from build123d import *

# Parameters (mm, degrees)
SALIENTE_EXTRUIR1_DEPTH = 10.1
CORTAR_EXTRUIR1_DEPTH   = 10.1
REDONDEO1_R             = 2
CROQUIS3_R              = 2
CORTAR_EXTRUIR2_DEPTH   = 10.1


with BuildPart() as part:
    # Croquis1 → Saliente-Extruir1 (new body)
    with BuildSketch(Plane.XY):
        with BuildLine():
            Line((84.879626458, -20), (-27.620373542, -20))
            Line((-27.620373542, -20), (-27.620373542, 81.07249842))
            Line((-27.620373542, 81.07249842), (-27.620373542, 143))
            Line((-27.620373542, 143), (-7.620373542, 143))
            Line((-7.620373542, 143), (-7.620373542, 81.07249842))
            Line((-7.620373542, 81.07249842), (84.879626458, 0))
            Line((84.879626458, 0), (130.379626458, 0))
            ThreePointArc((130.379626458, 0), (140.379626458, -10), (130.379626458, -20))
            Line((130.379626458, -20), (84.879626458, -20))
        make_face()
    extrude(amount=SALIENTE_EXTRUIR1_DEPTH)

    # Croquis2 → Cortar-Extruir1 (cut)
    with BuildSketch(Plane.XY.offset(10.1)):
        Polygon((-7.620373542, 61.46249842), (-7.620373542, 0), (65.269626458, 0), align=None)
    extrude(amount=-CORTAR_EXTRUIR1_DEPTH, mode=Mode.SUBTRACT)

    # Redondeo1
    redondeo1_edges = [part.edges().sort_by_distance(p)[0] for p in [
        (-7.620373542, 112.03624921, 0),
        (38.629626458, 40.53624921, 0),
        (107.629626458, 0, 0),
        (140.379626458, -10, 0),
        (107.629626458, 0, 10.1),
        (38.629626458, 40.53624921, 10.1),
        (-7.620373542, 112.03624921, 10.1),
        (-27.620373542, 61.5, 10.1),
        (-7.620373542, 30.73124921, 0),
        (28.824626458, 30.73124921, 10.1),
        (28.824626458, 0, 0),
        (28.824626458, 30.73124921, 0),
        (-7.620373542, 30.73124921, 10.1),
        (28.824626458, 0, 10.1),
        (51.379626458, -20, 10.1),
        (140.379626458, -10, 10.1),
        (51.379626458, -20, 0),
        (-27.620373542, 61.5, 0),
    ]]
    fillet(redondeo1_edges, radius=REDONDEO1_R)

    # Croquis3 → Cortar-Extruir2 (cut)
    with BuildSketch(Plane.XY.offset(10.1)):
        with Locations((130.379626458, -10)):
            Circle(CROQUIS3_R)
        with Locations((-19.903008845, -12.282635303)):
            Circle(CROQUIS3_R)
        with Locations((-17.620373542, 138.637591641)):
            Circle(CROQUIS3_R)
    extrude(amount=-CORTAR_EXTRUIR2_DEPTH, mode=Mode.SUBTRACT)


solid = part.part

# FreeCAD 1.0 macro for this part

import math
import FreeCAD as App
import Part
import Sketcher

V = App.Vector
Q = App.Units.Quantity


def edges_at(feature, points):
    """Names of the edges that pass closest to the given points."""
    edges = feature.Shape.Edges
    near = lambda p: min(range(len(edges)), key=lambda i: edges[i].distToShape(Part.Vertex(*p))[0])
    return sorted({f"Edge{near(p) + 1}" for p in points})

doc = App.newDocument("Part")
body = doc.addObject("PartDesign::Body", "Body")

sketch1 = body.newObject("Sketcher::SketchObject", "Sketch")
sketch1.AttachmentSupport = (doc.getObject("XY_Plane"), [""])
sketch1.MapMode = "FlatFace"
sketch1.addGeometry([
    Part.LineSegment(V(-28, 143, 0), V(-28, -20, 0)),
    Part.LineSegment(V(-28, -20, 0), V(130, -20, 0)),
    Part.ArcOfCircle(Part.Circle(V(130, -10, 0), V(0, 0, 1), 10), math.radians(-90), math.radians(90)),
    Part.LineSegment(V(130, 0, 0), V(85, 0, 0)),
    Part.LineSegment(V(85, 0, 0), V(-8, 81, 0)),
    Part.LineSegment(V(-8, 81, 0), V(-8, 143, 0)),
    Part.LineSegment(V(-8, 143, 0), V(-28, 143, 0)),
], False)
sketch1.addConstraint([
    Sketcher.Constraint("Coincident", 0, 2, 1, 1),
    Sketcher.Constraint("Tangent", 1, 2, 2, 1),
    Sketcher.Constraint("Tangent", 2, 2, 3, 1),
    Sketcher.Constraint("Coincident", 3, 2, 4, 1),
    Sketcher.Constraint("Coincident", 4, 2, 5, 1),
    Sketcher.Constraint("Coincident", 5, 2, 6, 1),
    Sketcher.Constraint("Coincident", 6, 2, 0, 1),
    Sketcher.Constraint("Vertical", 0),
    Sketcher.Constraint("Horizontal", 1),
    Sketcher.Constraint("Horizontal", 3),
    Sketcher.Constraint("Vertical", 5),
    Sketcher.Constraint("Horizontal", 6),
    Sketcher.Constraint("PointOnObject", 2, 2, -1),
    Sketcher.Constraint("Radius", 2, Q("10 mm")),
    Sketcher.Constraint("DistanceX", 1, 1, 1, 2, Q("158 mm")),
    Sketcher.Constraint("DistanceX", 6, 2, 6, 1, Q("20 mm")),
    Sketcher.Constraint("DistanceY", 0, 2, 0, 1, Q("163 mm")),
    Sketcher.Constraint("Distance", 4, Q("123 mm")),
    Sketcher.Constraint("DistanceX", 3, 2, 3, 1, Q("45.5 mm")),
    Sketcher.Constraint("DistanceX", -1, 1, 2, 3, Q("130.379626 mm")),
])
pad1 = body.newObject("PartDesign::Pad", "Pad")
pad1.Profile = sketch1
pad1.Length = 10.1

sketch2 = body.newObject("Sketcher::SketchObject", "Sketch001")
sketch2.AttachmentSupport = (doc.getObject("XY_Plane"), [""])
sketch2.MapMode = "FlatFace"
sketch2.AttachmentOffset = App.Placement(V(0, 0, 10.1), App.Rotation())
sketch2.addGeometry([
    Part.LineSegment(V(-8, 61, 0), V(-8, 0, 0)),
    Part.LineSegment(V(-8, 0, 0), V(65, 0, 0)),
    Part.LineSegment(V(65, 0, 0), V(-8, 61, 0)),
], False)
sketch2.addConstraint([
    Sketcher.Constraint("Coincident", 0, 2, 1, 1),
    Sketcher.Constraint("Coincident", 1, 2, 2, 1),
    Sketcher.Constraint("Coincident", 2, 2, 0, 1),
    Sketcher.Constraint("Vertical", 0),
    Sketcher.Constraint("Horizontal", 1),
    Sketcher.Constraint("PointOnObject", 0, 2, -1),
    Sketcher.Constraint("DistanceX", 1, 1, 1, 2, Q("72.89 mm")),
    Sketcher.Constraint("DistanceY", 0, 2, 0, 1, Q("61.462498 mm")),
    Sketcher.Constraint("DistanceX", 0, 2, -1, 1, Q("7.620374 mm")),
])
pocket1 = body.newObject("PartDesign::Pocket", "Pocket")
pocket1.Profile = sketch2
pocket1.Length = 10.1
doc.recompute()

fillet = body.newObject("PartDesign::Fillet", "Fillet")
fillet.Base = (pocket1, edges_at(pocket1, [
    (-7.62, 112.036, 0),
    (38.63, 40.536, 0),
    (107.63, 0, 0),
    (140.38, -10, 0),
    (107.63, 0, 10.1),
    (38.63, 40.536, 10.1),
    (-7.62, 112.036, 10.1),
    (-27.62, 61.5, 10.1),
    (-7.62, 30.731, 0),
    (28.825, 30.731, 10.1),
    (28.825, 0, 0),
    (28.825, 30.731, 0),
    (-7.62, 30.731, 10.1),
    (28.825, 0, 10.1),
    (51.38, -20, 10.1),
    (140.38, -10, 10.1),
    (51.38, -20, 0),
    (-27.62, 61.5, 0),
]))
fillet.Radius = 2

sketch3 = body.newObject("Sketcher::SketchObject", "Sketch002")
sketch3.AttachmentSupport = (doc.getObject("XY_Plane"), [""])
sketch3.MapMode = "FlatFace"
sketch3.AttachmentOffset = App.Placement(V(0, 0, 10.1), App.Rotation())
sketch3.addGeometry([
    Part.Circle(V(130.4, -10, 0), V(0, 0, 1), 2),
    Part.Circle(V(-19.9, -12.3, 0), V(0, 0, 1), 2),
    Part.Circle(V(-17.6, 138.6, 0), V(0, 0, 1), 2),
], False)
sketch3.addConstraint([
    Sketcher.Constraint("Equal", 0, 1),
    Sketcher.Constraint("Equal", 1, 2),
    Sketcher.Constraint("Diameter", 0, Q("4 mm")),
    Sketcher.Constraint("DistanceY", 0, 3, -1, 1, Q("10 mm")),
    Sketcher.Constraint("DistanceX", 2, 3, 0, 3, Q("148 mm")),
    Sketcher.Constraint("DistanceX", 1, 3, -1, 1, Q("19.903009 mm")),
    Sketcher.Constraint("DistanceY", -1, 1, 2, 3, Q("138.637592 mm")),
    Sketcher.Constraint("DistanceX", -1, 1, 0, 3, Q("130.379626 mm")),
    Sketcher.Constraint("DistanceY", 1, 3, -1, 1, Q("12.282635 mm")),
])
pocket2 = body.newObject("PartDesign::Pocket", "Pocket001")
pocket2.Profile = sketch3
pocket2.Length = 10.1

doc.recompute()
